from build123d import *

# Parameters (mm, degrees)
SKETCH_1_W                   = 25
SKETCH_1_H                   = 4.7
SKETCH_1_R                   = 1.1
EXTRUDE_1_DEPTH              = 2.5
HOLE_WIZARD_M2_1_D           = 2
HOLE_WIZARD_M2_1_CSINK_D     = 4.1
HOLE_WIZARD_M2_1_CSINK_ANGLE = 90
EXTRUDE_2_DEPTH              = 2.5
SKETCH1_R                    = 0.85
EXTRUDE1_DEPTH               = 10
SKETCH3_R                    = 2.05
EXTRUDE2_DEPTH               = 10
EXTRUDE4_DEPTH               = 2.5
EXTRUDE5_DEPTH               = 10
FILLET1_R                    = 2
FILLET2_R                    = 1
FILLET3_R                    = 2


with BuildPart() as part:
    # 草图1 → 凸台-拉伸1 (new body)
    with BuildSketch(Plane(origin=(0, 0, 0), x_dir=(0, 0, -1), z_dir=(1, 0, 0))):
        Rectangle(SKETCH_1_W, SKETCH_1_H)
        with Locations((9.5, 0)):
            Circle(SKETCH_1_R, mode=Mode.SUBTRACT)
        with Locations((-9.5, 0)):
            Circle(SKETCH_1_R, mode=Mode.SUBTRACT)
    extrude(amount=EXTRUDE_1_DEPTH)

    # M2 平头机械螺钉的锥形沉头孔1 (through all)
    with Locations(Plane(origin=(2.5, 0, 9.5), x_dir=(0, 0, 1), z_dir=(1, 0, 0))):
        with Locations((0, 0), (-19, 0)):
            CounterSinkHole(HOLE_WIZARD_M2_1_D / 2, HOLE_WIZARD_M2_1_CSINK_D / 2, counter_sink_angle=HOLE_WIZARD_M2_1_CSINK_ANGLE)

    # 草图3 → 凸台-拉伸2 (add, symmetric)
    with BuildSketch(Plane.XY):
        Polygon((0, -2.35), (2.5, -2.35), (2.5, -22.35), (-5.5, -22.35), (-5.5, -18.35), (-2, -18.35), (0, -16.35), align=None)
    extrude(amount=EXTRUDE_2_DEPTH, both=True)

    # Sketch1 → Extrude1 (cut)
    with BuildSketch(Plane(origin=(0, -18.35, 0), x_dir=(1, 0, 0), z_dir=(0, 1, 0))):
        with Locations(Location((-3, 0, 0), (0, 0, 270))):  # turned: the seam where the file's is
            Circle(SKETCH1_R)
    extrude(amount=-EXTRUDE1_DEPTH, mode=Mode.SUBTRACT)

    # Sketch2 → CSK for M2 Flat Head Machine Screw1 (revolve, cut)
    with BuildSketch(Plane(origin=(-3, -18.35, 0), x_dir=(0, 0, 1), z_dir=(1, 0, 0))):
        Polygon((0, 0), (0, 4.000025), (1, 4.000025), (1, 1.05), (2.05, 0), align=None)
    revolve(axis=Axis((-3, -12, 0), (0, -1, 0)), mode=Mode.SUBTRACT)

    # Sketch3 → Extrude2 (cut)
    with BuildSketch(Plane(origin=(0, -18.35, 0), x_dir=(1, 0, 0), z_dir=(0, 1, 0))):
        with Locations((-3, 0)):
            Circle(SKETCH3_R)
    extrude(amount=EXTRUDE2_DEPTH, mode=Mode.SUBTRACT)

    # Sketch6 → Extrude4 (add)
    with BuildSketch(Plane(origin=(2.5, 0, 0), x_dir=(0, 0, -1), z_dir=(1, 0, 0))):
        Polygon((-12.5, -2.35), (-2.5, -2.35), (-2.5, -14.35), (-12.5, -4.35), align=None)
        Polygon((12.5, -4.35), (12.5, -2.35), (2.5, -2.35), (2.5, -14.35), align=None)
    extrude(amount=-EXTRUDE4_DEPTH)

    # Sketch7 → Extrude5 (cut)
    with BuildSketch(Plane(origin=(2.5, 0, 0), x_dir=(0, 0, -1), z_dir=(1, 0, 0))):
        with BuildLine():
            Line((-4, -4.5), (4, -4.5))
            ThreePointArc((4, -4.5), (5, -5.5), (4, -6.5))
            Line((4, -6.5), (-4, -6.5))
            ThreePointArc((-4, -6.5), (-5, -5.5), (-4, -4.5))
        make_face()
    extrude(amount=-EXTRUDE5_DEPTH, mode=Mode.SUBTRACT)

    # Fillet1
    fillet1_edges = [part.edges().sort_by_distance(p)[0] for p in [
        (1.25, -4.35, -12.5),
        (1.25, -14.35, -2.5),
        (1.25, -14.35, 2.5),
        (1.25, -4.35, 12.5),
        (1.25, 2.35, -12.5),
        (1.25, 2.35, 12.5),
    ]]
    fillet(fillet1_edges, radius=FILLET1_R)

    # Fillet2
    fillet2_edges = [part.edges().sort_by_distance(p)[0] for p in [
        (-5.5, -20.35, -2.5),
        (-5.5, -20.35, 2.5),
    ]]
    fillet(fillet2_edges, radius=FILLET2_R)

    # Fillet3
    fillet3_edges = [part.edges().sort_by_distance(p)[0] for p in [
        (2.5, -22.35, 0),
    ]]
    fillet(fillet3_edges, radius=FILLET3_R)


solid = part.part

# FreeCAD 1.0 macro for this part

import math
import FreeCAD as App
import Part
import Sketcher
Q = App.Units.Quantity


def edges_at(feature, points):
    """Names of the edges that pass closest to the given points."""
    edges = feature.Shape.Edges
    near = lambda p: min(range(len(edges)), key=lambda i: edges[i].distToShape(Part.Vertex(*p))[0])
    return sorted({f"Edge{near(p) + 1}" for p in points})


def add_polygon(sketch, points):
    """Adds a closed chain of lines whose ends are joined by coincident constraints."""
    first, n = sketch.GeometryCount, len(points)
    for a, b in zip(points, points[1:] + points[:1]):
        sketch.addGeometry(Part.LineSegment(App.Vector(*a, 0), App.Vector(*b, 0)), False)
    for i in range(n):
        sketch.addConstraint(Sketcher.Constraint("Coincident", first + i, 2, first + (i + 1) % n, 1))

doc = App.newDocument("Part")
body = doc.addObject("PartDesign::Body", "Body")

# Sketch on YZ plane
sketch1 = doc.addObject("Sketcher::SketchObject", "Sketch")
body.addObject(sketch1)
sketch1.AttachmentSupport = (doc.YZ_Plane, [""])
sketch1.MapMode = "FlatFace"
add_polygon(sketch1, [(2.4, 12.5), (-2.4, 12.5), (-2.4, -12.5), (2.4, -12.5)])  # lines 0-3
sketch1.addGeometry(Part.Circle(App.Vector(0, 9.5, 0), App.Vector(0, 0, 1), 1.1), False)  # 4
sketch1.addGeometry(Part.Circle(App.Vector(0, -9.5, 0), App.Vector(0, 0, 1), 1.1), False)  # 5
sketch1.addConstraint([
    Sketcher.Constraint("Horizontal", 0),
    Sketcher.Constraint("Vertical", 1),
    Sketcher.Constraint("Horizontal", 2),
    Sketcher.Constraint("Vertical", 3),
    Sketcher.Constraint("Equal", 4, 5),
    Sketcher.Constraint("Symmetric", 4, 3, 5, 3, -1, 1),
    Sketcher.Constraint("Symmetric", 0, 2, 2, 2, -1, 1),
    Sketcher.Constraint("PointOnObject", 4, 3, -2),
    Sketcher.Constraint("Diameter", 4, 2.2),
    Sketcher.Constraint("DistanceY", 1, 2, 1, 1, 25.0),
    Sketcher.Constraint("DistanceX", 0, 2, 0, 1, 4.7),
    Sketcher.Constraint("DistanceY", 5, 3, 4, 3, 19.0),
])
pad1 = doc.addObject("PartDesign::Pad", "Pad")
body.addObject(pad1)
pad1.Profile = sketch1
pad1.Length = 2.5

# Sketch on YZ plane
sketch2 = doc.addObject("Sketcher::SketchObject", "Sketch001")
body.addObject(sketch2)
sketch2.AttachmentSupport = (doc.YZ_Plane, [""])
sketch2.MapMode = "FlatFace"
sketch2.AttachmentOffset = App.Placement(App.Vector(0, 0, 2.5), App.Rotation())
sketch2.addGeometry([
    Part.Circle(App.Vector(0, 9.5, 0), App.Vector(0, 0, 1), 1),
    Part.Circle(App.Vector(0, -9.5, 0), App.Vector(0, 0, 1), 1),
], False)
sketch2.addConstraint([
    Sketcher.Constraint("Equal", 0, 1),
    Sketcher.Constraint("Symmetric", 0, 3, 1, 3, -1, 1),
    Sketcher.Constraint("PointOnObject", 0, 3, -2),
    Sketcher.Constraint("Diameter", 0, 2.0),
    Sketcher.Constraint("DistanceY", 1, 3, 0, 3, 19.0),
])
doc.recompute()
hole = doc.addObject("PartDesign::Hole", "Hole")
body.addObject(hole)
hole.Profile = sketch2
hole.ThreadType = "None"
hole.Diameter = 2
hole.DepthType = "ThroughAll"
hole.HoleCutType = "Countersink"
hole.HoleCutDiameter = 4.1
hole.HoleCutCountersinkAngle = 90

# Sketch on XY plane
sketch3 = doc.addObject("Sketcher::SketchObject", "Sketch002")
body.addObject(sketch3)
sketch3.AttachmentSupport = (doc.XY_Plane, [""])
sketch3.MapMode = "FlatFace"
add_polygon(sketch3, [(2.5, -2.4), (0, -2.4), (0, -16.4), (-2, -18.4), (-5.5, -18.4), (-5.5, -22.4), (2.5, -22.4)])  # lines 0-6
sketch3.addConstraint([
    Sketcher.Constraint("Horizontal", 0),
    Sketcher.Constraint("Vertical", 1),
    Sketcher.Constraint("Horizontal", 3),
    Sketcher.Constraint("Vertical", 4),
    Sketcher.Constraint("Horizontal", 5),
    Sketcher.Constraint("Vertical", 6),
    Sketcher.Constraint("PointOnObject", 0, 2, -2),
    Sketcher.Constraint("DistanceX", 5, 1, 5, 2, 8.0),
    Sketcher.Constraint("DistanceY", 1, 2, 1, 1, 14.0),
    Sketcher.Constraint("DistanceY", 4, 2, 4, 1, 4.0),
    Sketcher.Constraint("DistanceY", 6, 1, 6, 2, 20.0),
    Sketcher.Constraint("Angle", 2, Q("-135 deg")),
    Sketcher.Constraint("DistanceX", 0, 2, 0, 1, 2.5),
    Sketcher.Constraint("DistanceY", 0, 2, -1, 1, 2.35),
])
pad2 = doc.addObject("PartDesign::Pad", "Pad001")
body.addObject(pad2)
pad2.Profile = sketch3
pad2.Length = 5
pad2.Midplane = True

# Sketch on XZ plane
sketch4 = doc.addObject("Sketcher::SketchObject", "Sketch003")
body.addObject(sketch4)
sketch4.AttachmentSupport = (doc.XZ_Plane, [""])
sketch4.MapMode = "FlatFace"
sketch4.AttachmentOffset = App.Placement(App.Vector(0, 0, 18.35), App.Rotation())
sketch4.addGeometry(Part.Circle(App.Vector(-3, 0, 0), App.Vector(0, 0, 1), 0.8), False)
sketch4.addConstraint([
    Sketcher.Constraint("PointOnObject", 0, 3, -1),
    Sketcher.Constraint("Diameter", 0, 1.7),
    Sketcher.Constraint("DistanceX", 0, 3, -1, 1, 3.0),
])
pocket1 = doc.addObject("PartDesign::Pocket", "Pocket")
body.addObject(pocket1)
pocket1.Profile = sketch4
pocket1.Length = 10
pocket1.Reversed = True

# Sketch on YZ plane
sketch5 = doc.addObject("Sketcher::SketchObject", "Sketch004")
body.addObject(sketch5)
sketch5.AttachmentSupport = (doc.YZ_Plane, [""])
sketch5.MapMode = "FlatFace"
sketch5.AttachmentOffset = App.Placement(App.Vector(0, 0, -3), App.Rotation())
add_polygon(sketch5, [(-22.4, 0), (-18.4, 0), (-18.4, 2), (-19.4, 1), (-22.4, 1)])  # lines 0-4
sketch5.addConstraint([
    Sketcher.Constraint("Horizontal", 0),
    Sketcher.Constraint("Vertical", 1),
    Sketcher.Constraint("Horizontal", 3),
    Sketcher.Constraint("Vertical", 4),
    Sketcher.Constraint("PointOnObject", 0, 2, -1),
    Sketcher.Constraint("DistanceY", 4, 2, 4, 1, 1.0),
    Sketcher.Constraint("Angle", 2, Q("-135 deg")),
    Sketcher.Constraint("DistanceY", 1, 1, 1, 2, 2.05),
    Sketcher.Constraint("DistanceX", 2, 2, -1, 1, 19.4),
    Sketcher.Constraint("DistanceX", 0, 1, 0, 2, 4.000025),
])
groove = doc.addObject("PartDesign::Groove", "Groove")
body.addObject(groove)
groove.Profile = sketch5
groove.ReferenceAxis = (sketch5, ["H_Axis"])
groove.Angle = 360

# Sketch on XZ plane
sketch6 = doc.addObject("Sketcher::SketchObject", "Sketch005")
body.addObject(sketch6)
sketch6.AttachmentSupport = (doc.XZ_Plane, [""])
sketch6.MapMode = "FlatFace"
sketch6.AttachmentOffset = App.Placement(App.Vector(0, 0, 18.35), App.Rotation())
sketch6.addGeometry(Part.Circle(App.Vector(-3, 0, 0), App.Vector(0, 0, 1), 2), False)
sketch6.addConstraint([
    Sketcher.Constraint("PointOnObject", 0, 3, -1),
    Sketcher.Constraint("Diameter", 0, 4.1),
    Sketcher.Constraint("DistanceX", 0, 3, -1, 1, 3.0),
])
pocket2 = doc.addObject("PartDesign::Pocket", "Pocket001")
body.addObject(pocket2)
pocket2.Profile = sketch6
pocket2.Length = 10

# Sketch on YZ plane
sketch7 = doc.addObject("Sketcher::SketchObject", "Sketch006")
body.addObject(sketch7)
sketch7.AttachmentSupport = (doc.YZ_Plane, [""])
sketch7.MapMode = "FlatFace"
sketch7.AttachmentOffset = App.Placement(App.Vector(0, 0, 2.5), App.Rotation())
add_polygon(sketch7, [(-2.4, 2.5), (-2.4, 12.5), (-4.3, 12.5), (-14.3, 2.5)])  # lines 0-3
add_polygon(sketch7, [(-4.3, -12.5), (-2.4, -12.5), (-2.4, -2.5), (-14.3, -2.5)])  # lines 4-7
sketch7.addConstraint([
    Sketcher.Constraint("Vertical", 0),
    Sketcher.Constraint("Horizontal", 1),
    Sketcher.Constraint("Horizontal", 3),
    Sketcher.Constraint("Horizontal", 4),
    Sketcher.Constraint("Vertical", 5),
    Sketcher.Constraint("Horizontal", 6),
    Sketcher.Constraint("Symmetric", 0, 2, 4, 2, -1),
    Sketcher.Constraint("Symmetric", 2, 2, 6, 2, -1),
    Sketcher.Constraint("Perpendicular", 2, 7),
    Sketcher.Constraint("Vertical", 1, 2, 7, 2),
    Sketcher.Constraint("DistanceX", 1, 2, 1, 1, 2.0),
    Sketcher.Constraint("DistanceX", 3, 1, 3, 2, 12.0),
    Sketcher.Constraint("DistanceY", 4, 2, 3, 2, 15.0),
    Sketcher.Constraint("DistanceX", 0, 2, -1, 1, 2.35),
])
pad3 = doc.addObject("PartDesign::Pad", "Pad002")
body.addObject(pad3)
pad3.Profile = sketch7
pad3.Length = 2.5
pad3.Reversed = True

# Sketch on YZ plane
sketch8 = doc.addObject("Sketcher::SketchObject", "Sketch007")
body.addObject(sketch8)
sketch8.AttachmentSupport = (doc.YZ_Plane, [""])
sketch8.MapMode = "FlatFace"
sketch8.AttachmentOffset = App.Placement(App.Vector(0, 0, 2.5), App.Rotation())
sketch8.addGeometry([
    Part.LineSegment(App.Vector(-4.5, -4, 0), App.Vector(-4.5, 4, 0)),
    Part.ArcOfCircle(Part.Circle(App.Vector(-5.5, 4, 0), App.Vector(0, 0, 1), 1), math.radians(0), math.radians(180)),
    Part.LineSegment(App.Vector(-6.5, 4, 0), App.Vector(-6.5, -4, 0)),
    Part.ArcOfCircle(Part.Circle(App.Vector(-5.5, -4, 0), App.Vector(0, 0, 1), 1), math.radians(180), math.radians(360)),
], False)
sketch8.addConstraint([
    Sketcher.Constraint("Tangent", 0, 2, 1, 1),
    Sketcher.Constraint("Tangent", 1, 2, 2, 1),
    Sketcher.Constraint("Tangent", 2, 2, 3, 1),
    Sketcher.Constraint("Tangent", 3, 2, 0, 1),
    Sketcher.Constraint("Vertical", 0),
    Sketcher.Constraint("Vertical", 2),
    Sketcher.Constraint("Radius", 1, 1.0),
    Sketcher.Constraint("DistanceY", 0, 1, 0, 2, 8.0),
    Sketcher.Constraint("DistanceY", -1, 1, 1, 3, 4.0),
    Sketcher.Constraint("DistanceX", 1, 3, -1, 1, 5.5),
])
pocket3 = doc.addObject("PartDesign::Pocket", "Pocket002")
body.addObject(pocket3)
pocket3.Profile = sketch8
pocket3.Length = 10
doc.recompute()

fillet = doc.addObject("PartDesign::Fillet", "Fillet")
body.addObject(fillet)
fillet.Base = (pocket3, edges_at(pocket3, [
    (1.25, -4.35, -12.5),
    (1.25, -14.35, -2.5),
    (1.25, -14.35, 2.5),
    (1.25, -4.35, 12.5),
    (1.25, 2.35, -12.5),
    (1.25, 2.35, 12.5),
]))
fillet.Radius = 2
doc.recompute()

fillet2 = doc.addObject("PartDesign::Fillet", "Fillet001")
body.addObject(fillet2)
fillet2.Base = (fillet, edges_at(fillet, [(-5.5, -20.35, -2.5), (-5.5, -20.35, 2.5)]))
fillet2.Radius = 1
doc.recompute()

fillet3 = doc.addObject("PartDesign::Fillet", "Fillet002")
body.addObject(fillet3)
fillet3.Base = (fillet2, edges_at(fillet2, [(2.5, -22.35, 0)]))
fillet3.Radius = 2

doc.recompute()
